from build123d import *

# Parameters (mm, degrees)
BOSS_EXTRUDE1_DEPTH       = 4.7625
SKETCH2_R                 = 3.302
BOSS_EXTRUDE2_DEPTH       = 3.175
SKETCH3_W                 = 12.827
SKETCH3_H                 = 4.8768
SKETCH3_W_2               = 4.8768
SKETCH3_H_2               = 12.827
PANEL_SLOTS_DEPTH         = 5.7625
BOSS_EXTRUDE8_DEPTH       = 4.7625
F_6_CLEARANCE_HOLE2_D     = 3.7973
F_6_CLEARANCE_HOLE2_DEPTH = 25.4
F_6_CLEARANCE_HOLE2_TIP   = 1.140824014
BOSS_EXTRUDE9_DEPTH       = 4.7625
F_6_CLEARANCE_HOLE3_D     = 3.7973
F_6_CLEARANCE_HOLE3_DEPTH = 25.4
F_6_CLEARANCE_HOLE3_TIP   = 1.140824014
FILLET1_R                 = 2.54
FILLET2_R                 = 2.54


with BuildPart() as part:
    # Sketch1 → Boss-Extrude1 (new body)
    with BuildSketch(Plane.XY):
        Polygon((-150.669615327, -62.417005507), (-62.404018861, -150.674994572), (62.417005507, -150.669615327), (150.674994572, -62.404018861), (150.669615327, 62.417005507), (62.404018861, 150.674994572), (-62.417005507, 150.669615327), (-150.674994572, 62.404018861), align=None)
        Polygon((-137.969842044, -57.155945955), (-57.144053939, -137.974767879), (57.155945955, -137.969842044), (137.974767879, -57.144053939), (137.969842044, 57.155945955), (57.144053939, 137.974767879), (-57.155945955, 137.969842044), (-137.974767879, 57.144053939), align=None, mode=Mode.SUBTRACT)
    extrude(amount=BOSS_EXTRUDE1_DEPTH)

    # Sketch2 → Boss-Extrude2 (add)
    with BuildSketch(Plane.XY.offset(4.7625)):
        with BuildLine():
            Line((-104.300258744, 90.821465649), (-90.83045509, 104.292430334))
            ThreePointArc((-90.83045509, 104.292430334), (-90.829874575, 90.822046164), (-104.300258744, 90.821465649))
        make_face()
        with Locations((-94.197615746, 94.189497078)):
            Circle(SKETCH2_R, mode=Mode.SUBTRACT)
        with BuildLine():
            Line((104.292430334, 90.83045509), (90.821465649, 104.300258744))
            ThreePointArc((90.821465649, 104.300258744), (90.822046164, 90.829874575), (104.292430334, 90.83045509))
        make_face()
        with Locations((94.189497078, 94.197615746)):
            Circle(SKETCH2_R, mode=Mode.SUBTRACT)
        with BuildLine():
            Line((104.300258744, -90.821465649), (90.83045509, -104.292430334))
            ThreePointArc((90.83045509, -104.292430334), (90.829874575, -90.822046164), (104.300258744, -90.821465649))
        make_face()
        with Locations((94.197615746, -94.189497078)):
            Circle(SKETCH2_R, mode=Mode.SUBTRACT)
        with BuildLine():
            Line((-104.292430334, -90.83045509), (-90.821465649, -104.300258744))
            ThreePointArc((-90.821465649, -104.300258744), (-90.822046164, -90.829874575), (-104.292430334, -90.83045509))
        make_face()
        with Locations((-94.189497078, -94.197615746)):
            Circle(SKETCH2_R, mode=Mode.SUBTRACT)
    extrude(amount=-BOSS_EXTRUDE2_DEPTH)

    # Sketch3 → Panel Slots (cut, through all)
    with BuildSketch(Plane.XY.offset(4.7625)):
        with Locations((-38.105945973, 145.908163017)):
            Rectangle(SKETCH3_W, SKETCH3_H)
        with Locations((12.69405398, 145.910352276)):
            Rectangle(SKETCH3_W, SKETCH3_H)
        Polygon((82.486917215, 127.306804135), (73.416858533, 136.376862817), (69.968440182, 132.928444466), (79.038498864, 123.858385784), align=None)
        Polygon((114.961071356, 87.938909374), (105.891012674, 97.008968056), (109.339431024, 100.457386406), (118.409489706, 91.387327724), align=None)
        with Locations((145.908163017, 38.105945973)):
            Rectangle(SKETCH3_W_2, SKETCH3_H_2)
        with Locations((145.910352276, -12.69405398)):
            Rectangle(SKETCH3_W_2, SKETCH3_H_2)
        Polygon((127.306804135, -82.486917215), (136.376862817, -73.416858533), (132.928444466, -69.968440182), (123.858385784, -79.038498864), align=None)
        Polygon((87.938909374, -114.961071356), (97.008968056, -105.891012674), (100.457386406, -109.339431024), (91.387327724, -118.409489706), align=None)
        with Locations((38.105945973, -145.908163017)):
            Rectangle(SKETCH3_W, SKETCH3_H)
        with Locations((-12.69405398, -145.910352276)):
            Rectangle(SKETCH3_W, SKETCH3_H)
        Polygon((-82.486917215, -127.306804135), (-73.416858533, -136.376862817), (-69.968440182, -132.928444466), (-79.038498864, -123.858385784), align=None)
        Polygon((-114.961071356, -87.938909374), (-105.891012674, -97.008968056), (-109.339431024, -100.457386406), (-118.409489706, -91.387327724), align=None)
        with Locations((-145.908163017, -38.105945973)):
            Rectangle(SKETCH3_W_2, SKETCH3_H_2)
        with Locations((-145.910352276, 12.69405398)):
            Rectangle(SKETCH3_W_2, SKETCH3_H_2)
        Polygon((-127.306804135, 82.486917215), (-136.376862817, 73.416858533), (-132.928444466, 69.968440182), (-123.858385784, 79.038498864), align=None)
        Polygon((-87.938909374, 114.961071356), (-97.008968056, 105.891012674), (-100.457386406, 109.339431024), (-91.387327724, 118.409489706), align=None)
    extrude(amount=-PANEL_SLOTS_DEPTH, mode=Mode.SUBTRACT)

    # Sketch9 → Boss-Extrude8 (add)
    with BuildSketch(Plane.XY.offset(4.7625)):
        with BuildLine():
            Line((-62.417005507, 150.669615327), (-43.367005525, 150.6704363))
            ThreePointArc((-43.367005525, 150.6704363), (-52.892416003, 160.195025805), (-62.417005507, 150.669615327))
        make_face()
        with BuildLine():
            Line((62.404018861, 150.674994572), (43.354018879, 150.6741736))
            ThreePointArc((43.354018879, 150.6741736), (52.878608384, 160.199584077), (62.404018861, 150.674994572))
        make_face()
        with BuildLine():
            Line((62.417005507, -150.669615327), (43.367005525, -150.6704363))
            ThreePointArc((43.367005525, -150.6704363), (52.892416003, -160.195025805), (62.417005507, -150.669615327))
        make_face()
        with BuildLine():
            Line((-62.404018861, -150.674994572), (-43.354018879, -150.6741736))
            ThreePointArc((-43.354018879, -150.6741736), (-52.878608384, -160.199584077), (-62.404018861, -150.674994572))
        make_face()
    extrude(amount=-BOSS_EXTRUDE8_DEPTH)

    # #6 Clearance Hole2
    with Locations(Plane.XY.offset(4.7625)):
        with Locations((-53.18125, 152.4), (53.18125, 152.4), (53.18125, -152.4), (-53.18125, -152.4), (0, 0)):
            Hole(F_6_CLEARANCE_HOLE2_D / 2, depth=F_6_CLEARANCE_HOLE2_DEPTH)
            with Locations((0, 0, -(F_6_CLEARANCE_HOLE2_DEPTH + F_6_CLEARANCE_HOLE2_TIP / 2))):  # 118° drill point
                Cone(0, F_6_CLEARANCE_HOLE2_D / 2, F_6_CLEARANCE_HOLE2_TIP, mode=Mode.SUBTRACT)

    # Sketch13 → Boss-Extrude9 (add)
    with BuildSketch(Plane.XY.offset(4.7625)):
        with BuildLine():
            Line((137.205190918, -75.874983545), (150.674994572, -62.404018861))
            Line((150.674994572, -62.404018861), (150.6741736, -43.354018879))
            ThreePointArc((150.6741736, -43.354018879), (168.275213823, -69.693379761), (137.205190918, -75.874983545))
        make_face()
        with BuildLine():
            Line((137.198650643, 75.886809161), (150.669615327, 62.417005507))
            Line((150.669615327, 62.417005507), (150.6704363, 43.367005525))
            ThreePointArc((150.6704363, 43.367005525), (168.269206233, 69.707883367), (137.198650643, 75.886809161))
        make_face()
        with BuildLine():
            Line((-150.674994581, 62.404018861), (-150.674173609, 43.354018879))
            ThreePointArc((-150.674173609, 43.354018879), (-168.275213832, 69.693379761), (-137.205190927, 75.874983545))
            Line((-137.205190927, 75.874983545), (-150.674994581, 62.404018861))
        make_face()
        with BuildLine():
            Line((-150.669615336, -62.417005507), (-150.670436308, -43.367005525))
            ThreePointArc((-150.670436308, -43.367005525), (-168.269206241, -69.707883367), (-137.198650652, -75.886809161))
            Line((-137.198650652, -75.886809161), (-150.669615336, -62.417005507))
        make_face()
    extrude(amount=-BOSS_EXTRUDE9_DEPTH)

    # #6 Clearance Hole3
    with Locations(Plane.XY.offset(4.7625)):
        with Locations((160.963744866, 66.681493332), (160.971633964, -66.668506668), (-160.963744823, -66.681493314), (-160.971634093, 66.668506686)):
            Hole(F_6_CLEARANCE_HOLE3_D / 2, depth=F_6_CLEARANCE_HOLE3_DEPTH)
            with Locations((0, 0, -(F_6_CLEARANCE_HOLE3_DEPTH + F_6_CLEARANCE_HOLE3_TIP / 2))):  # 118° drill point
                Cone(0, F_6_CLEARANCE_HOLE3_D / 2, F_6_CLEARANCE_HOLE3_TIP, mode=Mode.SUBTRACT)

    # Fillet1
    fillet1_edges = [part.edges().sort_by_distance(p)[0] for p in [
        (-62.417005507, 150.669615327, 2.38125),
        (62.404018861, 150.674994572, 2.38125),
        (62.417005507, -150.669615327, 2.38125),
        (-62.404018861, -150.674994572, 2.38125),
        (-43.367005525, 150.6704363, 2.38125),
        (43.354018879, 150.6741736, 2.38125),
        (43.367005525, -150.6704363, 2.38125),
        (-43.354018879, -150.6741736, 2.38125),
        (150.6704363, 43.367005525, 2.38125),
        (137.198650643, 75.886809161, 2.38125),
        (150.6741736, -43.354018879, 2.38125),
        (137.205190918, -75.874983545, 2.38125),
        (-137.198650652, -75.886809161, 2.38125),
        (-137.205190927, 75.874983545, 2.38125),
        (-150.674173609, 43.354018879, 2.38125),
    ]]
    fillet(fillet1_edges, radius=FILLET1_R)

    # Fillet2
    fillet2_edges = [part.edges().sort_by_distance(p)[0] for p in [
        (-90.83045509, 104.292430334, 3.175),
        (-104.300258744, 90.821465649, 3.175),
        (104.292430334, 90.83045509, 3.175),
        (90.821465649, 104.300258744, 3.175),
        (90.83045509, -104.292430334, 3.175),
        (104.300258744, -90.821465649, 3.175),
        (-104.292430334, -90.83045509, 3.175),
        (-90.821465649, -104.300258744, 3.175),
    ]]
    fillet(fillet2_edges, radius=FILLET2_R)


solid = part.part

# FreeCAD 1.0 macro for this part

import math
import FreeCAD as App
import Part
import Sketcher
from FreeCAD import Vector
Q = App.Units.Quantity


def edges_at(feature, points):
    """Names of the edges that pass closest to the given points."""
    edges = feature.Shape.Edges
    near = lambda p: min(range(len(edges)), key=lambda i: edges[i].distToShape(Part.Vertex(*p))[0])
    return sorted({f"Edge{near(p) + 1}" for p in points})

doc = App.newDocument("Part")
body = doc.addObject("PartDesign::Body", "Body")

# Sketch on XY plane
sketch1 = doc.addObject("Sketcher::SketchObject", "Sketch")
body.addObject(sketch1)
sketch1.AttachmentSupport = (doc.XY_Plane, [""])
sketch1.MapMode = "FlatFace"
sketch1.addGeometry(Part.LineSegment(Vector(-150.669615, -62.417006, 0), Vector(-62.404019, -150.674995, 0)), False)
sketch1.addGeometry(Part.LineSegment(Vector(-62.404019, -150.674995, 0), Vector(62.417006, -150.669615, 0)), False)
sketch1.addGeometry(Part.LineSegment(Vector(62.417006, -150.669615, 0), Vector(150.674995, -62.404019, 0)), False)
sketch1.addGeometry(Part.LineSegment(Vector(150.674995, -62.404019, 0), Vector(150.669615, 62.417006, 0)), False)
sketch1.addGeometry(Part.LineSegment(Vector(150.669615, 62.417006, 0), Vector(62.404019, 150.674995, 0)), False)
sketch1.addGeometry(Part.LineSegment(Vector(62.404019, 150.674995, 0), Vector(-62.417006, 150.669615, 0)), False)
sketch1.addGeometry(Part.LineSegment(Vector(-62.417006, 150.669615, 0), Vector(-150.674995, 62.404019, 0)), False)
sketch1.addGeometry(Part.LineSegment(Vector(-150.674995, 62.404019, 0), Vector(-150.669615, -62.417006, 0)), False)
sketch1.addGeometry(Part.LineSegment(Vector(-57.144054, -137.974768, 0), Vector(-137.969842, -57.155946, 0)), False)
sketch1.addGeometry(Part.LineSegment(Vector(-137.969842, -57.155946, 0), Vector(-137.974768, 57.144054, 0)), False)
sketch1.addGeometry(Part.LineSegment(Vector(-137.974768, 57.144054, 0), Vector(-57.155946, 137.969842, 0)), False)
sketch1.addGeometry(Part.LineSegment(Vector(-57.155946, 137.969842, 0), Vector(57.144054, 137.974768, 0)), False)
sketch1.addGeometry(Part.LineSegment(Vector(57.144054, 137.974768, 0), Vector(137.969842, 57.155946, 0)), False)
sketch1.addGeometry(Part.LineSegment(Vector(137.969842, 57.155946, 0), Vector(137.974768, -57.144054, 0)), False)
sketch1.addGeometry(Part.LineSegment(Vector(137.974768, -57.144054, 0), Vector(57.155946, -137.969842, 0)), False)
sketch1.addGeometry(Part.LineSegment(Vector(57.155946, -137.969842, 0), Vector(-57.144054, -137.974768, 0)), False)
sketch1.addConstraint(Sketcher.Constraint("Coincident", 0, 2, 1, 1))
sketch1.addConstraint(Sketcher.Constraint("Coincident", 1, 2, 2, 1))
sketch1.addConstraint(Sketcher.Constraint("Coincident", 2, 2, 3, 1))
sketch1.addConstraint(Sketcher.Constraint("Coincident", 3, 2, 4, 1))
sketch1.addConstraint(Sketcher.Constraint("Coincident", 4, 2, 5, 1))
sketch1.addConstraint(Sketcher.Constraint("Coincident", 5, 2, 6, 1))
sketch1.addConstraint(Sketcher.Constraint("Coincident", 6, 2, 7, 1))
sketch1.addConstraint(Sketcher.Constraint("Coincident", 7, 2, 0, 1))
sketch1.addConstraint(Sketcher.Constraint("Coincident", 8, 2, 9, 1))
sketch1.addConstraint(Sketcher.Constraint("Coincident", 9, 2, 10, 1))
sketch1.addConstraint(Sketcher.Constraint("Coincident", 10, 2, 11, 1))
sketch1.addConstraint(Sketcher.Constraint("Coincident", 11, 2, 12, 1))
sketch1.addConstraint(Sketcher.Constraint("Coincident", 12, 2, 13, 1))
sketch1.addConstraint(Sketcher.Constraint("Coincident", 13, 2, 14, 1))
sketch1.addConstraint(Sketcher.Constraint("Coincident", 14, 2, 15, 1))
sketch1.addConstraint(Sketcher.Constraint("Coincident", 15, 2, 8, 1))
sketch1.addConstraint(Sketcher.Constraint("Symmetric", 0, 2, 4, 2, -1, 1))
sketch1.addConstraint(Sketcher.Constraint("Symmetric", 1, 2, 5, 2, -1, 1))
sketch1.addConstraint(Sketcher.Constraint("Symmetric", 2, 2, 6, 2, -1, 1))
sketch1.addConstraint(Sketcher.Constraint("Symmetric", 3, 2, 7, 2, -1, 1))
sketch1.addConstraint(Sketcher.Constraint("Symmetric", 8, 2, 12, 2, -1, 1))
sketch1.addConstraint(Sketcher.Constraint("Symmetric", 9, 2, 13, 2, -1, 1))
sketch1.addConstraint(Sketcher.Constraint("Symmetric", 10, 2, 14, 2, -1, 1))
sketch1.addConstraint(Sketcher.Constraint("Symmetric", 11, 2, 15, 2, -1, 1))
sketch1.addConstraint(Sketcher.Constraint("Perpendicular", 0, 2))
sketch1.addConstraint(Sketcher.Constraint("Perpendicular", 1, 3))
sketch1.addConstraint(Sketcher.Constraint("Perpendicular", 6, 8))
sketch1.addConstraint(Sketcher.Constraint("Parallel", 7, 9))
sketch1.addConstraint(Sketcher.Constraint("Perpendicular", 8, 10))
sketch1.addConstraint(Sketcher.Constraint("Perpendicular", 9, 11))
sketch1.addConstraint(Sketcher.Constraint("Equal", 0, 1))
sketch1.addConstraint(Sketcher.Constraint("Equal", 1, 2))
sketch1.addConstraint(Sketcher.Constraint("Equal", 2, 3))
sketch1.addConstraint(Sketcher.Constraint("Equal", 8, 9))
sketch1.addConstraint(Sketcher.Constraint("Equal", 9, 10))
sketch1.addConstraint(Sketcher.Constraint("Equal", 10, 11))
sketch1.addConstraint(Sketcher.Constraint("Distance", 8, Q("4.5 in")))
sketch1.addConstraint(Sketcher.Constraint("DistanceY", 0, 2, 3, 2, Q("213.092 mm")))
sketch1.addConstraint(Sketcher.Constraint("DistanceX", 0, 2, -1, 1, Q("62.404019 mm")))
sketch1.addConstraint(Sketcher.Constraint("DistanceY", 0, 2, 1, 2, Q("0.005379 mm")))
pad1 = doc.addObject("PartDesign::Pad", "Pad")
body.addObject(pad1)
pad1.Profile = sketch1
pad1.Length = Q("0.1875 in")

# Sketch on XY plane
sketch2 = doc.addObject("Sketcher::SketchObject", "Sketch001")
body.addObject(sketch2)
sketch2.AttachmentSupport = (doc.XY_Plane, [""])
sketch2.MapMode = "FlatFace"
sketch2.AttachmentOffset = App.Placement(Vector(0, 0, 0.1875 * 25.4), App.Rotation())
sketch2.addGeometry(Part.LineSegment(Vector(-90.830455, 104.29243, 0), Vector(-104.300259, 90.821466, 0)), False)
sketch2.addGeometry(Part.ArcOfCircle(Part.Circle(Vector(-97.565357, 97.556948, 0), Vector(0, 0, 1), 9.525), math.radians(-134.997531), math.radians(45.002469)), False)
sketch2.addGeometry(Part.Circle(Vector(-94.197616, 94.189497, 0), Vector(0, 0, 1), 3.302), False)
sketch2.addGeometry(Part.LineSegment(Vector(104.29243, 90.830455, 0), Vector(90.821466, 104.300259, 0)), False)
sketch2.addGeometry(Part.ArcOfCircle(Part.Circle(Vector(97.556948, 97.565357, 0), Vector(0, 0, 1), 9.525), math.radians(135.002469), math.radians(315.002469)), False)
sketch2.addGeometry(Part.Circle(Vector(94.189497, 94.197616, 0), Vector(0, 0, 1), 3.302), False)
sketch2.addGeometry(Part.LineSegment(Vector(90.830455, -104.29243, 0), Vector(104.300259, -90.821466, 0)), False)
sketch2.addGeometry(Part.ArcOfCircle(Part.Circle(Vector(97.565357, -97.556948, 0), Vector(0, 0, 1), 9.525), math.radians(45.002469), math.radians(225.002469)), False)
sketch2.addGeometry(Part.Circle(Vector(94.197616, -94.189497, 0), Vector(0, 0, 1), 3.302), False)
sketch2.addGeometry(Part.LineSegment(Vector(-104.29243, -90.830455, 0), Vector(-90.821466, -104.300259, 0)), False)
sketch2.addGeometry(Part.ArcOfCircle(Part.Circle(Vector(-97.556948, -97.565357, 0), Vector(0, 0, 1), 9.525), math.radians(-44.997531), math.radians(135.002469)), False)
sketch2.addGeometry(Part.Circle(Vector(-94.189497, -94.197616, 0), Vector(0, 0, 1), 3.302), False)
sketch2.addConstraint(Sketcher.Constraint("Coincident", 0, 1, 1, 2))
sketch2.addConstraint(Sketcher.Constraint("Coincident", 1, 1, 0, 2))
sketch2.addConstraint(Sketcher.Constraint("Coincident", 3, 1, 4, 2))
sketch2.addConstraint(Sketcher.Constraint("Coincident", 4, 1, 3, 2))
sketch2.addConstraint(Sketcher.Constraint("Coincident", 6, 1, 7, 2))
sketch2.addConstraint(Sketcher.Constraint("Coincident", 7, 1, 6, 2))
sketch2.addConstraint(Sketcher.Constraint("Coincident", 9, 1, 10, 2))
sketch2.addConstraint(Sketcher.Constraint("Coincident", 10, 1, 9, 2))
sketch2.addConstraint(Sketcher.Constraint("Equal", 1, 4))
sketch2.addConstraint(Sketcher.Constraint("Equal", 2, 5))
sketch2.addConstraint(Sketcher.Constraint("Equal", 4, 7))
sketch2.addConstraint(Sketcher.Constraint("Equal", 5, 8))
sketch2.addConstraint(Sketcher.Constraint("Equal", 7, 10))
sketch2.addConstraint(Sketcher.Constraint("Equal", 8, 11))
sketch2.addConstraint(Sketcher.Constraint("Symmetric", 1, 3, 7, 3, -1, 1))
sketch2.addConstraint(Sketcher.Constraint("Symmetric", 2, 3, 8, 3, -1, 1))
sketch2.addConstraint(Sketcher.Constraint("Symmetric", 4, 3, 10, 3, -1, 1))
sketch2.addConstraint(Sketcher.Constraint("Symmetric", 5, 3, 11, 3, -1, 1))
sketch2.addConstraint(Sketcher.Constraint("Perpendicular", 0, 3))
sketch2.addConstraint(Sketcher.Constraint("Perpendicular", 3, 6))
sketch2.addConstraint(Sketcher.Constraint("Perpendicular", 6, 9))
sketch2.addConstraint(Sketcher.Constraint("Diameter", 2, Q("0.26 in")))
sketch2.addConstraint(Sketcher.Constraint("Radius", 1, Q("0.375 in")))
sketch2.addConstraint(Sketcher.Constraint("DistanceX", 1, 3, 0, 1, Q("6.734902 mm")))
sketch2.addConstraint(Sketcher.Constraint("DistanceX", 1, 1, 1, 3, Q("6.734902 mm")))
sketch2.addConstraint(Sketcher.Constraint("DistanceY", 3, 1, 4, 3, Q("6.734902 mm")))
sketch2.addConstraint(Sketcher.Constraint("DistanceX", 6, 1, 7, 3, Q("6.734902 mm")))
sketch2.addConstraint(Sketcher.Constraint("DistanceY", 10, 3, 9, 1, Q("6.734902 mm")))
sketch2.addConstraint(Sketcher.Constraint("DistanceY", -1, 1, 0, 1, Q("104.29243 mm")))
sketch2.addConstraint(Sketcher.Constraint("DistanceX", 1, 1, -1, 1, Q("104.300259 mm")))
sketch2.addConstraint(Sketcher.Constraint("DistanceX", -1, 1, 3, 1, Q("104.29243 mm")))
sketch2.addConstraint(Sketcher.Constraint("DistanceY", -1, 1, 4, 1, Q("104.300259 mm")))
sketch2.addConstraint(Sketcher.Constraint("DistanceX", 1, 3, 2, 3, Q("3.367741 mm")))
sketch2.addConstraint(Sketcher.Constraint("DistanceY", 2, 3, 1, 3, Q("3.367451 mm")))
sketch2.addConstraint(Sketcher.Constraint("DistanceX", 5, 3, 4, 3, Q("3.367451 mm")))
sketch2.addConstraint(Sketcher.Constraint("DistanceY", 5, 3, 4, 3, Q("3.367741 mm")))
pad2 = doc.addObject("PartDesign::Pad", "Pad001")
body.addObject(pad2)
pad2.Profile = sketch2
pad2.Length = Q("0.125 in")
pad2.Reversed = True

# Sketch on XY plane
sketch3 = doc.addObject("Sketcher::SketchObject", "Sketch002")
body.addObject(sketch3)
sketch3.AttachmentSupport = (doc.XY_Plane, [""])
sketch3.MapMode = "FlatFace"
sketch3.AttachmentOffset = App.Placement(Vector(0, 0, 0.1875 * 25.4), App.Rotation())
sketch3.addGeometry(Part.LineSegment(Vector(-44.519446, 148.346563, 0), Vector(-44.519446, 143.469763, 0)), False)
sketch3.addGeometry(Part.LineSegment(Vector(-44.519446, 143.469763, 0), Vector(-31.692446, 143.469763, 0)), False)
sketch3.addGeometry(Part.LineSegment(Vector(-31.692446, 143.469763, 0), Vector(-31.692446, 148.346563, 0)), False)
sketch3.addGeometry(Part.LineSegment(Vector(-31.692446, 148.346563, 0), Vector(-44.519446, 148.346563, 0)), False)
sketch3.addGeometry(Part.LineSegment(Vector(6.280554, 148.348752, 0), Vector(6.280554, 143.471952, 0)), False)
sketch3.addGeometry(Part.LineSegment(Vector(6.280554, 143.471952, 0), Vector(19.107554, 143.471952, 0)), False)
sketch3.addGeometry(Part.LineSegment(Vector(19.107554, 143.471952, 0), Vector(19.107554, 148.348752, 0)), False)
sketch3.addGeometry(Part.LineSegment(Vector(19.107554, 148.348752, 0), Vector(6.280554, 148.348752, 0)), False)
sketch3.addGeometry(Part.LineSegment(Vector(82.486917, 127.306804, 0), Vector(73.416859, 136.376863, 0)), False)
sketch3.addGeometry(Part.LineSegment(Vector(73.416859, 136.376863, 0), Vector(69.96844, 132.928444, 0)), False)
sketch3.addGeometry(Part.LineSegment(Vector(69.96844, 132.928444, 0), Vector(79.038499, 123.858386, 0)), False)
sketch3.addGeometry(Part.LineSegment(Vector(79.038499, 123.858386, 0), Vector(82.486917, 127.306804, 0)), False)
sketch3.addGeometry(Part.LineSegment(Vector(105.891013, 97.008968, 0), Vector(114.961071, 87.938909, 0)), False)
sketch3.addGeometry(Part.LineSegment(Vector(114.961071, 87.938909, 0), Vector(118.40949, 91.387328, 0)), False)
sketch3.addGeometry(Part.LineSegment(Vector(118.40949, 91.387328, 0), Vector(109.339431, 100.457386, 0)), False)
sketch3.addGeometry(Part.LineSegment(Vector(109.339431, 100.457386, 0), Vector(105.891013, 97.008968, 0)), False)
sketch3.addGeometry(Part.LineSegment(Vector(143.469763, 44.519446, 0), Vector(143.469763, 31.692446, 0)), False)
sketch3.addGeometry(Part.LineSegment(Vector(143.469763, 31.692446, 0), Vector(148.346563, 31.692446, 0)), False)
sketch3.addGeometry(Part.LineSegment(Vector(148.346563, 31.692446, 0), Vector(148.346563, 44.519446, 0)), False)
sketch3.addGeometry(Part.LineSegment(Vector(148.346563, 44.519446, 0), Vector(143.469763, 44.519446, 0)), False)
sketch3.addGeometry(Part.LineSegment(Vector(143.471952, -6.280554, 0), Vector(143.471952, -19.107554, 0)), False)
sketch3.addGeometry(Part.LineSegment(Vector(143.471952, -19.107554, 0), Vector(148.348752, -19.107554, 0)), False)
sketch3.addGeometry(Part.LineSegment(Vector(148.348752, -19.107554, 0), Vector(148.348752, -6.280554, 0)), False)
sketch3.addGeometry(Part.LineSegment(Vector(148.348752, -6.280554, 0), Vector(143.471952, -6.280554, 0)), False)
sketch3.addGeometry(Part.LineSegment(Vector(127.306804, -82.486917, 0), Vector(136.376863, -73.416859, 0)), False)
sketch3.addGeometry(Part.LineSegment(Vector(136.376863, -73.416859, 0), Vector(132.928444, -69.96844, 0)), False)
sketch3.addGeometry(Part.LineSegment(Vector(132.928444, -69.96844, 0), Vector(123.858386, -79.038499, 0)), False)
sketch3.addGeometry(Part.LineSegment(Vector(123.858386, -79.038499, 0), Vector(127.306804, -82.486917, 0)), False)
sketch3.addGeometry(Part.LineSegment(Vector(97.008968, -105.891013, 0), Vector(87.938909, -114.961071, 0)), False)
sketch3.addGeometry(Part.LineSegment(Vector(87.938909, -114.961071, 0), Vector(91.387328, -118.40949, 0)), False)
sketch3.addGeometry(Part.LineSegment(Vector(91.387328, -118.40949, 0), Vector(100.457386, -109.339431, 0)), False)
sketch3.addGeometry(Part.LineSegment(Vector(100.457386, -109.339431, 0), Vector(97.008968, -105.891013, 0)), False)
sketch3.addGeometry(Part.LineSegment(Vector(31.692446, -143.469763, 0), Vector(31.692446, -148.346563, 0)), False)
sketch3.addGeometry(Part.LineSegment(Vector(31.692446, -148.346563, 0), Vector(44.519446, -148.346563, 0)), False)
sketch3.addGeometry(Part.LineSegment(Vector(44.519446, -148.346563, 0), Vector(44.519446, -143.469763, 0)), False)
sketch3.addGeometry(Part.LineSegment(Vector(44.519446, -143.469763, 0), Vector(31.692446, -143.469763, 0)), False)
sketch3.addGeometry(Part.LineSegment(Vector(-19.107554, -143.471952, 0), Vector(-19.107554, -148.348752, 0)), False)
sketch3.addGeometry(Part.LineSegment(Vector(-19.107554, -148.348752, 0), Vector(-6.280554, -148.348752, 0)), False)
sketch3.addGeometry(Part.LineSegment(Vector(-6.280554, -148.348752, 0), Vector(-6.280554, -143.471952, 0)), False)
sketch3.addGeometry(Part.LineSegment(Vector(-6.280554, -143.471952, 0), Vector(-19.107554, -143.471952, 0)), False)
sketch3.addGeometry(Part.LineSegment(Vector(-82.486917, -127.306804, 0), Vector(-73.416859, -136.376863, 0)), False)
sketch3.addGeometry(Part.LineSegment(Vector(-73.416859, -136.376863, 0), Vector(-69.96844, -132.928444, 0)), False)
sketch3.addGeometry(Part.LineSegment(Vector(-69.96844, -132.928444, 0), Vector(-79.038499, -123.858386, 0)), False)
sketch3.addGeometry(Part.LineSegment(Vector(-79.038499, -123.858386, 0), Vector(-82.486917, -127.306804, 0)), False)
sketch3.addGeometry(Part.LineSegment(Vector(-105.891013, -97.008968, 0), Vector(-114.961071, -87.938909, 0)), False)
sketch3.addGeometry(Part.LineSegment(Vector(-114.961071, -87.938909, 0), Vector(-118.40949, -91.387328, 0)), False)
sketch3.addGeometry(Part.LineSegment(Vector(-118.40949, -91.387328, 0), Vector(-109.339431, -100.457386, 0)), False)
sketch3.addGeometry(Part.LineSegment(Vector(-109.339431, -100.457386, 0), Vector(-105.891013, -97.008968, 0)), False)
sketch3.addGeometry(Part.LineSegment(Vector(-148.346563, -31.692446, 0), Vector(-148.346563, -44.519446, 0)), False)
sketch3.addGeometry(Part.LineSegment(Vector(-148.346563, -44.519446, 0), Vector(-143.469763, -44.519446, 0)), False)
sketch3.addGeometry(Part.LineSegment(Vector(-143.469763, -44.519446, 0), Vector(-143.469763, -31.692446, 0)), False)
sketch3.addGeometry(Part.LineSegment(Vector(-143.469763, -31.692446, 0), Vector(-148.346563, -31.692446, 0)), False)
sketch3.addGeometry(Part.LineSegment(Vector(-148.348752, 19.107554, 0), Vector(-148.348752, 6.280554, 0)), False)
sketch3.addGeometry(Part.LineSegment(Vector(-148.348752, 6.280554, 0), Vector(-143.471952, 6.280554, 0)), False)
sketch3.addGeometry(Part.LineSegment(Vector(-143.471952, 6.280554, 0), Vector(-143.471952, 19.107554, 0)), False)
sketch3.addGeometry(Part.LineSegment(Vector(-143.471952, 19.107554, 0), Vector(-148.348752, 19.107554, 0)), False)
sketch3.addGeometry(Part.LineSegment(Vector(-127.306804, 82.486917, 0), Vector(-136.376863, 73.416859, 0)), False)
sketch3.addGeometry(Part.LineSegment(Vector(-136.376863, 73.416859, 0), Vector(-132.928444, 69.96844, 0)), False)
sketch3.addGeometry(Part.LineSegment(Vector(-132.928444, 69.96844, 0), Vector(-123.858386, 79.038499, 0)), False)
sketch3.addGeometry(Part.LineSegment(Vector(-123.858386, 79.038499, 0), Vector(-127.306804, 82.486917, 0)), False)
sketch3.addGeometry(Part.LineSegment(Vector(-97.008968, 105.891013, 0), Vector(-87.938909, 114.961071, 0)), False)
sketch3.addGeometry(Part.LineSegment(Vector(-87.938909, 114.961071, 0), Vector(-91.387328, 118.40949, 0)), False)
sketch3.addGeometry(Part.LineSegment(Vector(-91.387328, 118.40949, 0), Vector(-100.457386, 109.339431, 0)), False)
sketch3.addGeometry(Part.LineSegment(Vector(-100.457386, 109.339431, 0), Vector(-97.008968, 105.891013, 0)), False)
sketch3.addConstraint(Sketcher.Constraint("Coincident", 0, 2, 1, 1))
sketch3.addConstraint(Sketcher.Constraint("Coincident", 1, 2, 2, 1))
sketch3.addConstraint(Sketcher.Constraint("Coincident", 2, 2, 3, 1))
sketch3.addConstraint(Sketcher.Constraint("Coincident", 3, 2, 0, 1))
sketch3.addConstraint(Sketcher.Constraint("Coincident", 4, 2, 5, 1))
sketch3.addConstraint(Sketcher.Constraint("Coincident", 5, 2, 6, 1))
sketch3.addConstraint(Sketcher.Constraint("Coincident", 6, 2, 7, 1))
sketch3.addConstraint(Sketcher.Constraint("Coincident", 7, 2, 4, 1))
sketch3.addConstraint(Sketcher.Constraint("Coincident", 8, 2, 9, 1))
sketch3.addConstraint(Sketcher.Constraint("Coincident", 9, 2, 10, 1))
sketch3.addConstraint(Sketcher.Constraint("Coincident", 10, 2, 11, 1))
sketch3.addConstraint(Sketcher.Constraint("Coincident", 11, 2, 8, 1))
sketch3.addConstraint(Sketcher.Constraint("Coincident", 12, 2, 13, 1))
sketch3.addConstraint(Sketcher.Constraint("Coincident", 13, 2, 14, 1))
sketch3.addConstraint(Sketcher.Constraint("Coincident", 14, 2, 15, 1))
sketch3.addConstraint(Sketcher.Constraint("Coincident", 15, 2, 12, 1))
sketch3.addConstraint(Sketcher.Constraint("Coincident", 16, 2, 17, 1))
sketch3.addConstraint(Sketcher.Constraint("Coincident", 17, 2, 18, 1))
sketch3.addConstraint(Sketcher.Constraint("Coincident", 18, 2, 19, 1))
sketch3.addConstraint(Sketcher.Constraint("Coincident", 19, 2, 16, 1))
sketch3.addConstraint(Sketcher.Constraint("Coincident", 20, 2, 21, 1))
sketch3.addConstraint(Sketcher.Constraint("Coincident", 21, 2, 22, 1))
sketch3.addConstraint(Sketcher.Constraint("Coincident", 22, 2, 23, 1))
sketch3.addConstraint(Sketcher.Constraint("Coincident", 23, 2, 20, 1))
sketch3.addConstraint(Sketcher.Constraint("Coincident", 24, 2, 25, 1))
sketch3.addConstraint(Sketcher.Constraint("Coincident", 25, 2, 26, 1))
sketch3.addConstraint(Sketcher.Constraint("Coincident", 26, 2, 27, 1))
sketch3.addConstraint(Sketcher.Constraint("Coincident", 27, 2, 24, 1))
sketch3.addConstraint(Sketcher.Constraint("Coincident", 28, 2, 29, 1))
sketch3.addConstraint(Sketcher.Constraint("Coincident", 29, 2, 30, 1))
sketch3.addConstraint(Sketcher.Constraint("Coincident", 30, 2, 31, 1))
sketch3.addConstraint(Sketcher.Constraint("Coincident", 31, 2, 28, 1))
sketch3.addConstraint(Sketcher.Constraint("Coincident", 32, 2, 33, 1))
sketch3.addConstraint(Sketcher.Constraint("Coincident", 33, 2, 34, 1))
sketch3.addConstraint(Sketcher.Constraint("Coincident", 34, 2, 35, 1))
sketch3.addConstraint(Sketcher.Constraint("Coincident", 35, 2, 32, 1))
sketch3.addConstraint(Sketcher.Constraint("Coincident", 36, 2, 37, 1))
sketch3.addConstraint(Sketcher.Constraint("Coincident", 37, 2, 38, 1))
sketch3.addConstraint(Sketcher.Constraint("Coincident", 38, 2, 39, 1))
sketch3.addConstraint(Sketcher.Constraint("Coincident", 39, 2, 36, 1))
sketch3.addConstraint(Sketcher.Constraint("Coincident", 40, 2, 41, 1))
sketch3.addConstraint(Sketcher.Constraint("Coincident", 41, 2, 42, 1))
sketch3.addConstraint(Sketcher.Constraint("Coincident", 42, 2, 43, 1))
sketch3.addConstraint(Sketcher.Constraint("Coincident", 43, 2, 40, 1))
sketch3.addConstraint(Sketcher.Constraint("Coincident", 44, 2, 45, 1))
sketch3.addConstraint(Sketcher.Constraint("Coincident", 45, 2, 46, 1))
sketch3.addConstraint(Sketcher.Constraint("Coincident", 46, 2, 47, 1))
sketch3.addConstraint(Sketcher.Constraint("Coincident", 47, 2, 44, 1))
sketch3.addConstraint(Sketcher.Constraint("Coincident", 48, 2, 49, 1))
sketch3.addConstraint(Sketcher.Constraint("Coincident", 49, 2, 50, 1))
sketch3.addConstraint(Sketcher.Constraint("Coincident", 50, 2, 51, 1))
sketch3.addConstraint(Sketcher.Constraint("Coincident", 51, 2, 48, 1))
sketch3.addConstraint(Sketcher.Constraint("Coincident", 52, 2, 53, 1))
sketch3.addConstraint(Sketcher.Constraint("Coincident", 53, 2, 54, 1))
sketch3.addConstraint(Sketcher.Constraint("Coincident", 54, 2, 55, 1))
sketch3.addConstraint(Sketcher.Constraint("Coincident", 55, 2, 52, 1))
sketch3.addConstraint(Sketcher.Constraint("Coincident", 56, 2, 57, 1))
sketch3.addConstraint(Sketcher.Constraint("Coincident", 57, 2, 58, 1))
sketch3.addConstraint(Sketcher.Constraint("Coincident", 58, 2, 59, 1))
sketch3.addConstraint(Sketcher.Constraint("Coincident", 59, 2, 56, 1))
sketch3.addConstraint(Sketcher.Constraint("Coincident", 60, 2, 61, 1))
sketch3.addConstraint(Sketcher.Constraint("Coincident", 61, 2, 62, 1))
sketch3.addConstraint(Sketcher.Constraint("Coincident", 62, 2, 63, 1))
sketch3.addConstraint(Sketcher.Constraint("Coincident", 63, 2, 60, 1))
sketch3.addConstraint(Sketcher.Constraint("Vertical", 0))
sketch3.addConstraint(Sketcher.Constraint("Horizontal", 1))
sketch3.addConstraint(Sketcher.Constraint("Vertical", 2))
sketch3.addConstraint(Sketcher.Constraint("Horizontal", 3))
sketch3.addConstraint(Sketcher.Constraint("Vertical", 4))
sketch3.addConstraint(Sketcher.Constraint("Horizontal", 5))
sketch3.addConstraint(Sketcher.Constraint("Vertical", 6))
sketch3.addConstraint(Sketcher.Constraint("Horizontal", 7))
sketch3.addConstraint(Sketcher.Constraint("Vertical", 16))
sketch3.addConstraint(Sketcher.Constraint("Horizontal", 17))
sketch3.addConstraint(Sketcher.Constraint("Vertical", 18))
sketch3.addConstraint(Sketcher.Constraint("Horizontal", 19))
sketch3.addConstraint(Sketcher.Constraint("Vertical", 20))
sketch3.addConstraint(Sketcher.Constraint("Horizontal", 21))
sketch3.addConstraint(Sketcher.Constraint("Vertical", 22))
sketch3.addConstraint(Sketcher.Constraint("Horizontal", 23))
sketch3.addConstraint(Sketcher.Constraint("Vertical", 32))
sketch3.addConstraint(Sketcher.Constraint("Horizontal", 33))
sketch3.addConstraint(Sketcher.Constraint("Vertical", 34))
sketch3.addConstraint(Sketcher.Constraint("Horizontal", 35))
sketch3.addConstraint(Sketcher.Constraint("Vertical", 36))
sketch3.addConstraint(Sketcher.Constraint("Horizontal", 37))
sketch3.addConstraint(Sketcher.Constraint("Vertical", 38))
sketch3.addConstraint(Sketcher.Constraint("Horizontal", 39))
sketch3.addConstraint(Sketcher.Constraint("Vertical", 48))
sketch3.addConstraint(Sketcher.Constraint("Horizontal", 49))
sketch3.addConstraint(Sketcher.Constraint("Vertical", 50))
sketch3.addConstraint(Sketcher.Constraint("Horizontal", 51))
sketch3.addConstraint(Sketcher.Constraint("Vertical", 52))
sketch3.addConstraint(Sketcher.Constraint("Horizontal", 53))
sketch3.addConstraint(Sketcher.Constraint("Vertical", 54))
sketch3.addConstraint(Sketcher.Constraint("Horizontal", 55))
sketch3.addConstraint(Sketcher.Constraint("Symmetric", 2, 2, 32, 2, -1, 1))
sketch3.addConstraint(Sketcher.Constraint("Symmetric", 0, 2, 34, 2, -1, 1))
sketch3.addConstraint(Sketcher.Constraint("Symmetric", 6, 2, 36, 2, -1, 1))
sketch3.addConstraint(Sketcher.Constraint("Symmetric", 4, 2, 38, 2, -1, 1))
sketch3.addConstraint(Sketcher.Constraint("Symmetric", 8, 2, 40, 2, -1, 1))
sketch3.addConstraint(Sketcher.Constraint("Symmetric", 9, 2, 41, 2, -1, 1))
sketch3.addConstraint(Sketcher.Constraint("Symmetric", 10, 2, 42, 2, -1, 1))
sketch3.addConstraint(Sketcher.Constraint("Symmetric", 11, 2, 43, 2, -1, 1))
sketch3.addConstraint(Sketcher.Constraint("Symmetric", 12, 2, 44, 2, -1, 1))
sketch3.addConstraint(Sketcher.Constraint("Symmetric", 13, 2, 45, 2, -1, 1))
sketch3.addConstraint(Sketcher.Constraint("Symmetric", 14, 2, 46, 2, -1, 1))
sketch3.addConstraint(Sketcher.Constraint("Symmetric", 15, 2, 47, 2, -1, 1))
sketch3.addConstraint(Sketcher.Constraint("Symmetric", 18, 2, 48, 2, -1, 1))
sketch3.addConstraint(Sketcher.Constraint("Symmetric", 16, 2, 50, 2, -1, 1))
sketch3.addConstraint(Sketcher.Constraint("Symmetric", 22, 2, 52, 2, -1, 1))
sketch3.addConstraint(Sketcher.Constraint("Symmetric", 20, 2, 54, 2, -1, 1))
sketch3.addConstraint(Sketcher.Constraint("Symmetric", 24, 2, 56, 2, -1, 1))
sketch3.addConstraint(Sketcher.Constraint("Symmetric", 25, 2, 57, 2, -1, 1))
sketch3.addConstraint(Sketcher.Constraint("Symmetric", 26, 2, 58, 2, -1, 1))
sketch3.addConstraint(Sketcher.Constraint("Symmetric", 27, 2, 59, 2, -1, 1))
sketch3.addConstraint(Sketcher.Constraint("Symmetric", 28, 2, 60, 2, -1, 1))
sketch3.addConstraint(Sketcher.Constraint("Symmetric", 29, 2, 61, 2, -1, 1))
sketch3.addConstraint(Sketcher.Constraint("Symmetric", 30, 2, 62, 2, -1, 1))
sketch3.addConstraint(Sketcher.Constraint("Symmetric", 31, 2, 63, 2, -1, 1))
sketch3.addConstraint(Sketcher.Constraint("Perpendicular", 8, 9))
sketch3.addConstraint(Sketcher.Constraint("Perpendicular", 9, 10))
sketch3.addConstraint(Sketcher.Constraint("Perpendicular", 10, 11))
sketch3.addConstraint(Sketcher.Constraint("Perpendicular", 11, 12))
sketch3.addConstraint(Sketcher.Constraint("Perpendicular", 12, 13))
sketch3.addConstraint(Sketcher.Constraint("Perpendicular", 13, 14))
sketch3.addConstraint(Sketcher.Constraint("Perpendicular", 14, 15))
sketch3.addConstraint(Sketcher.Constraint("Parallel", 15, 24))
sketch3.addConstraint(Sketcher.Constraint("Perpendicular", 24, 25))
sketch3.addConstraint(Sketcher.Constraint("Perpendicular", 25, 26))
sketch3.addConstraint(Sketcher.Constraint("Perpendicular", 26, 27))
sketch3.addConstraint(Sketcher.Constraint("Perpendicular", 27, 28))
sketch3.addConstraint(Sketcher.Constraint("Perpendicular", 28, 29))
sketch3.addConstraint(Sketcher.Constraint("Perpendicular", 29, 30))
sketch3.addConstraint(Sketcher.Constraint("Perpendicular", 30, 31))
sketch3.addConstraint(Sketcher.Constraint("Equal", 3, 5))
sketch3.addConstraint(Sketcher.Constraint("Equal", 19, 21))
sketch3.addConstraint(Sketcher.Constraint("Equal", 55, 0))
sketch3.addConstraint(Sketcher.Constraint("Equal", 2, 4))
sketch3.addConstraint(Sketcher.Constraint("Equal", 39, 16))
sketch3.addConstraint(Sketcher.Constraint("Equal", 18, 20))
sketch3.addConstraint(Sketcher.Constraint("Equal", 10, 12))
sketch3.addConstraint(Sketcher.Constraint("Equal", 11, 13))
sketch3.addConstraint(Sketcher.Constraint("Equal", 14, 24))
sketch3.addConstraint(Sketcher.Constraint("Equal", 15, 25))
sketch3.addConstraint(Sketcher.Constraint("Equal", 26, 28))
sketch3.addConstraint(Sketcher.Constraint("Equal", 27, 29))
sketch3.addConstraint(Sketcher.Constraint("Angle", 8, Q("135 deg")))
sketch3.addConstraint(Sketcher.Constraint("DistanceX", 1, 1, 1, 2, Q("0.505 in")))
sketch3.addConstraint(Sketcher.Constraint("DistanceX", 17, 1, 17, 2, Q("0.192 in")))
sketch3.addConstraint(Sketcher.Constraint("Distance", 8, Q("0.505 in")))
sketch3.addConstraint(Sketcher.Constraint("Distance", 9, Q("0.192 in")))
sketch3.addConstraint(Sketcher.Constraint("DistanceX", -1, 1, 10, 2, Q("79.038499 mm")))
sketch3.addConstraint(Sketcher.Constraint("DistanceY", 26, 2, -1, 1, Q("79.038499 mm")))
sketch3.addConstraint(Sketcher.Constraint("DistanceX", -1, 1, 12, 2, Q("114.961071 mm")))
sketch3.addConstraint(Sketcher.Constraint("DistanceY", -1, 1, 12, 2, Q("87.938909 mm")))
sketch3.addConstraint(Sketcher.Constraint("DistanceX", -1, 1, 28, 2, Q("87.938909 mm")))
sketch3.addConstraint(Sketcher.Constraint("DistanceY", 28, 2, -1, 1, Q("114.961071 mm")))
sketch3.addConstraint(Sketcher.Constraint("DistanceX", 0, 2, -1, 1, Q("44.519446 mm")))
sketch3.addConstraint(Sketcher.Constraint("DistanceY", -1, 1, 0, 2, Q("143.469763 mm")))
sketch3.addConstraint(Sketcher.Constraint("DistanceX", -1, 1, 4, 2, Q("6.280554 mm")))
sketch3.addConstraint(Sketcher.Constraint("DistanceY", -1, 1, 4, 2, Q("143.471952 mm")))
sketch3.addConstraint(Sketcher.Constraint("DistanceY", -1, 1, 8, 2, Q("136.376863 mm")))
sketch3.addConstraint(Sketcher.Constraint("DistanceX", -1, 1, 16, 2, Q("143.469763 mm")))
sketch3.addConstraint(Sketcher.Constraint("DistanceY", -1, 1, 16, 2, Q("31.692446 mm")))
sketch3.addConstraint(Sketcher.Constraint("DistanceX", -1, 1, 20, 2, Q("143.471952 mm")))
sketch3.addConstraint(Sketcher.Constraint("DistanceY", 20, 2, -1, 1, Q("19.107554 mm")))
sketch3.addConstraint(Sketcher.Constraint("DistanceX", -1, 1, 24, 2, Q("136.376863 mm")))
pocket1 = doc.addObject("PartDesign::Pocket", "Pocket")
body.addObject(pocket1)
pocket1.Profile = sketch3
pocket1.Type = "ThroughAll"

# Sketch on XY plane
sketch4 = doc.addObject("Sketcher::SketchObject", "Sketch003")
body.addObject(sketch4)
sketch4.AttachmentSupport = (doc.XY_Plane, [""])
sketch4.MapMode = "FlatFace"
sketch4.AttachmentOffset = App.Placement(Vector(0, 0, 0.1875 * 25.4), App.Rotation())
sketch4.addGeometry(Part.LineSegment(Vector(-62.417006, 150.669615, 0), Vector(-43.367006, 150.670436, 0)), False)
sketch4.addGeometry(Part.ArcOfCircle(Part.Circle(Vector(-52.892006, 150.670026, 0), Vector(0, 0, 1), 9.525), math.radians(0.002469), math.radians(180.002469)), False)
sketch4.addGeometry(Part.LineSegment(Vector(43.354019, 150.674174, 0), Vector(62.404019, 150.674995, 0)), False)
sketch4.addGeometry(Part.ArcOfCircle(Part.Circle(Vector(52.879019, 150.674584, 0), Vector(0, 0, 1), 9.525), math.radians(0.002469), math.radians(180.002469)), False)
sketch4.addGeometry(Part.LineSegment(Vector(62.417006, -150.669615, 0), Vector(43.367006, -150.670436, 0)), False)
sketch4.addGeometry(Part.ArcOfCircle(Part.Circle(Vector(52.892006, -150.670026, 0), Vector(0, 0, 1), 9.525), math.radians(-179.997531), math.radians(0.002469)), False)
sketch4.addGeometry(Part.LineSegment(Vector(-43.354019, -150.674174, 0), Vector(-62.404019, -150.674995, 0)), False)
sketch4.addGeometry(Part.ArcOfCircle(Part.Circle(Vector(-52.879019, -150.674584, 0), Vector(0, 0, 1), 9.525), math.radians(-179.997531), math.radians(0.002469)), False)
sketch4.addConstraint(Sketcher.Constraint("Coincident", 0, 1, 1, 2))
sketch4.addConstraint(Sketcher.Constraint("Coincident", 1, 1, 0, 2))
sketch4.addConstraint(Sketcher.Constraint("Coincident", 2, 1, 3, 2))
sketch4.addConstraint(Sketcher.Constraint("Coincident", 3, 1, 2, 2))
sketch4.addConstraint(Sketcher.Constraint("Coincident", 4, 1, 5, 2))
sketch4.addConstraint(Sketcher.Constraint("Coincident", 5, 1, 4, 2))
sketch4.addConstraint(Sketcher.Constraint("Coincident", 6, 1, 7, 2))
sketch4.addConstraint(Sketcher.Constraint("Coincident", 7, 1, 6, 2))
sketch4.addConstraint(Sketcher.Constraint("Equal", 1, 3))
sketch4.addConstraint(Sketcher.Constraint("Equal", 3, 5))
sketch4.addConstraint(Sketcher.Constraint("Equal", 5, 7))
sketch4.addConstraint(Sketcher.Constraint("Symmetric", 1, 3, 5, 3, -1, 1))
sketch4.addConstraint(Sketcher.Constraint("Symmetric", 3, 3, 7, 3, -1, 1))
sketch4.addConstraint(Sketcher.Constraint("Parallel", 0, 2))
sketch4.addConstraint(Sketcher.Constraint("Parallel", 2, 4))
sketch4.addConstraint(Sketcher.Constraint("Parallel", 4, 6))
sketch4.addConstraint(Sketcher.Constraint("Radius", 1, Q("0.375 in")))
sketch4.addConstraint(Sketcher.Constraint("DistanceY", 7, 3, 0, 1, Q("301.344199 mm")))
sketch4.addConstraint(Sketcher.Constraint("DistanceY", 5, 3, 2, 1, Q("301.344199 mm")))
sketch4.addConstraint(Sketcher.Constraint("DistanceY", 4, 1, 3, 3, Q("301.344199 mm")))
sketch4.addConstraint(Sketcher.Constraint("DistanceX", -1, 1, 3, 3, Q("52.879019 mm")))
sketch4.addConstraint(Sketcher.Constraint("DistanceY", 1, 3, 3, 3, Q("0.004558 mm")))
sketch4.addConstraint(Sketcher.Constraint("DistanceY", 5, 3, 3, 3, Q("301.34461 mm")))
sketch4.addConstraint(Sketcher.Constraint("DistanceX", 1, 3, 5, 3, Q("105.784011 mm")))
sketch4.addConstraint(Sketcher.Constraint("DistanceY", 1, 3, 1, 1, Q("0.00041 mm")))
sketch4.addConstraint(Sketcher.Constraint("DistanceY", 7, 3, 6, 1, Q("0.00041 mm")))
pad3 = doc.addObject("PartDesign::Pad", "Pad002")
body.addObject(pad3)
pad3.Profile = sketch4
pad3.Length = Q("0.1875 in")
pad3.Reversed = True

# Sketch on XY plane
sketch5 = doc.addObject("Sketcher::SketchObject", "Sketch004")
body.addObject(sketch5)
sketch5.AttachmentSupport = (doc.XY_Plane, [""])
sketch5.MapMode = "FlatFace"
sketch5.AttachmentOffset = App.Placement(Vector(0, 0, 0.1875 * 25.4), App.Rotation())
sketch5.addGeometry(Part.Circle(Vector(-53.18125, 152.4, 0), Vector(0, 0, 1), 1.89865), False)
sketch5.addGeometry(Part.Circle(Vector(53.18125, 152.4, 0), Vector(0, 0, 1), 1.89865), False)
sketch5.addGeometry(Part.Circle(Vector(53.18125, -152.4, 0), Vector(0, 0, 1), 1.89865), False)
sketch5.addGeometry(Part.Circle(Vector(-53.18125, -152.4, 0), Vector(0, 0, 1), 1.89865), False)
sketch5.addGeometry(Part.Circle(Vector(0, 0, 0), Vector(0, 0, 1), 1.89865), False)
sketch5.addConstraint(Sketcher.Constraint("Coincident", 4, 3, -1, 1))
sketch5.addConstraint(Sketcher.Constraint("Equal", 0, 1))
sketch5.addConstraint(Sketcher.Constraint("Equal", 1, 2))
sketch5.addConstraint(Sketcher.Constraint("Equal", 2, 3))
sketch5.addConstraint(Sketcher.Constraint("Equal", 3, 4))
sketch5.addConstraint(Sketcher.Constraint("Symmetric", 0, 3, 2, 3, -1, 1))
sketch5.addConstraint(Sketcher.Constraint("Symmetric", 1, 3, 3, 3, -1, 1))
sketch5.addConstraint(Sketcher.Constraint("Symmetric", 0, 3, 1, 3, -2))
sketch5.addConstraint(Sketcher.Constraint("DistanceY", -1, 1, 0, 3, Q("6 in")))
sketch5.addConstraint(Sketcher.Constraint("Diameter", 0, Q("0.1495 in")))
sketch5.addConstraint(Sketcher.Constraint("DistanceX", 0, 3, -1, 1, Q("2.09375 in")))
doc.recompute()
hole = doc.addObject("PartDesign::Hole", "Hole")
body.addObject(hole)
hole.Profile = sketch5
hole.ThreadType = "None"
hole.Diameter = Q("0.1495 in")
hole.DepthType = "Dimension"
hole.Depth = Q("1 in")
hole.DrillPoint = "Angled"
hole.DrillPointAngle = 118

# Sketch on XY plane
sketch6 = doc.addObject("Sketcher::SketchObject", "Sketch005")
body.addObject(sketch6)
sketch6.AttachmentSupport = (doc.XY_Plane, [""])
sketch6.MapMode = "FlatFace"
sketch6.AttachmentOffset = App.Placement(Vector(0, 0, 0.1875 * 25.4), App.Rotation())
sketch6.addGeometry(Part.LineSegment(Vector(150.674995, -62.404019, 0), Vector(137.205191, -75.874984, 0)), False)
sketch6.addGeometry(Part.ArcOfCircle(Part.Circle(Vector(150.674995, -62.404019, 0), Vector(0, 0, 1), 19.05), math.radians(-134.997531), math.radians(90.002469)), False)
sketch6.addGeometry(Part.LineSegment(Vector(150.674174, -43.354019, 0), Vector(150.674995, -62.404019, 0)), False)
sketch6.addGeometry(Part.LineSegment(Vector(137.198651, 75.886809, 0), Vector(150.669615, 62.417006, 0)), False)
sketch6.addGeometry(Part.LineSegment(Vector(150.669615, 62.417006, 0), Vector(150.670436, 43.367006, 0)), False)
sketch6.addGeometry(Part.ArcOfCircle(Part.Circle(Vector(150.669615, 62.417006, 0), Vector(0, 0, 1), 19.05), math.radians(-89.997531), math.radians(135.002469)), False)
sketch6.addGeometry(Part.LineSegment(Vector(-150.674174, 43.354019, 0), Vector(-150.674995, 62.404019, 0)), False)
sketch6.addGeometry(Part.LineSegment(Vector(-150.674995, 62.404019, 0), Vector(-137.205191, 75.874984, 0)), False)
sketch6.addGeometry(Part.ArcOfCircle(Part.Circle(Vector(-150.674995, 62.404019, 0), Vector(0, 0, 1), 19.05), math.radians(45.002469), math.radians(270.002469)), False)
sketch6.addGeometry(Part.LineSegment(Vector(-150.669615, -62.417006, 0), Vector(-150.670436, -43.367006, 0)), False)
sketch6.addGeometry(Part.ArcOfCircle(Part.Circle(Vector(-150.669615, -62.417006, 0), Vector(0, 0, 1), 19.05), math.radians(90.002469), math.radians(315.002469)), False)
sketch6.addGeometry(Part.LineSegment(Vector(-137.198651, -75.886809, 0), Vector(-150.669615, -62.417006, 0)), False)
sketch6.addConstraint(Sketcher.Constraint("Coincident", 0, 2, 1, 1))
sketch6.addConstraint(Sketcher.Constraint("Coincident", 1, 2, 2, 1))
sketch6.addConstraint(Sketcher.Constraint("Coincident", 2, 2, 0, 1))
sketch6.addConstraint(Sketcher.Constraint("Coincident", 3, 2, 4, 1))
sketch6.addConstraint(Sketcher.Constraint("Coincident", 4, 2, 5, 1))
sketch6.addConstraint(Sketcher.Constraint("Coincident", 5, 2, 3, 1))
sketch6.addConstraint(Sketcher.Constraint("Coincident", 6, 2, 7, 1))
sketch6.addConstraint(Sketcher.Constraint("Coincident", 7, 2, 8, 1))
sketch6.addConstraint(Sketcher.Constraint("Coincident", 8, 2, 6, 1))
sketch6.addConstraint(Sketcher.Constraint("Coincident", 9, 2, 10, 1))
sketch6.addConstraint(Sketcher.Constraint("Coincident", 10, 2, 11, 1))
sketch6.addConstraint(Sketcher.Constraint("Coincident", 11, 2, 9, 1))
sketch6.addConstraint(Sketcher.Constraint("Coincident", 2, 2, 1, 3))
sketch6.addConstraint(Sketcher.Constraint("Coincident", 3, 2, 5, 3))
sketch6.addConstraint(Sketcher.Constraint("Coincident", 6, 2, 8, 3))
sketch6.addConstraint(Sketcher.Constraint("Coincident", 11, 2, 10, 3))
sketch6.addConstraint(Sketcher.Constraint("Equal", 1, 5))
sketch6.addConstraint(Sketcher.Constraint("Equal", 5, 8))
sketch6.addConstraint(Sketcher.Constraint("Equal", 8, 10))
sketch6.addConstraint(Sketcher.Constraint("Symmetric", 1, 3, 8, 3, -1, 1))
sketch6.addConstraint(Sketcher.Constraint("Symmetric", 5, 3, 10, 3, -1, 1))
sketch6.addConstraint(Sketcher.Constraint("Perpendicular", 0, 3))
sketch6.addConstraint(Sketcher.Constraint("Parallel", 2, 4))
sketch6.addConstraint(Sketcher.Constraint("Parallel", 4, 6))
sketch6.addConstraint(Sketcher.Constraint("Perpendicular", 3, 7))
sketch6.addConstraint(Sketcher.Constraint("Parallel", 6, 9))
sketch6.addConstraint(Sketcher.Constraint("Perpendicular", 7, 11))
sketch6.addConstraint(Sketcher.Constraint("Radius", 1, Q("0.75 in")))
sketch6.addConstraint(Sketcher.Constraint("DistanceY", 1, 3, -1, 1, Q("62.404019 mm")))
sketch6.addConstraint(Sketcher.Constraint("DistanceX", -1, 1, 0, 2, Q("137.205191 mm")))
sketch6.addConstraint(Sketcher.Constraint("DistanceX", -1, 1, 5, 2, Q("137.198651 mm")))
sketch6.addConstraint(Sketcher.Constraint("DistanceY", -1, 1, 5, 2, Q("75.886809 mm")))
sketch6.addConstraint(Sketcher.Constraint("DistanceX", 5, 3, 1, 3, Q("0.005379 mm")))
sketch6.addConstraint(Sketcher.Constraint("DistanceX", 1, 2, 1, 3, Q("0.000821 mm")))
pad4 = doc.addObject("PartDesign::Pad", "Pad003")
body.addObject(pad4)
pad4.Profile = sketch6
pad4.Length = Q("0.1875 in")
pad4.Reversed = True

# Sketch on XY plane
sketch7 = doc.addObject("Sketcher::SketchObject", "Sketch006")
body.addObject(sketch7)
sketch7.AttachmentSupport = (doc.XY_Plane, [""])
sketch7.MapMode = "FlatFace"
sketch7.AttachmentOffset = App.Placement(Vector(0, 0, 0.1875 * 25.4), App.Rotation())
sketch7.addGeometry(Part.Circle(Vector(160.963745, 66.681493, 0), Vector(0, 0, 1), 1.89865), False)
sketch7.addGeometry(Part.Circle(Vector(160.971634, -66.668507, 0), Vector(0, 0, 1), 1.89865), False)
sketch7.addGeometry(Part.Circle(Vector(-160.963745, -66.681493, 0), Vector(0, 0, 1), 1.89865), False)
sketch7.addGeometry(Part.Circle(Vector(-160.971634, 66.668507, 0), Vector(0, 0, 1), 1.89865), False)
sketch7.addConstraint(Sketcher.Constraint("Equal", 0, 1))
sketch7.addConstraint(Sketcher.Constraint("Equal", 1, 2))
sketch7.addConstraint(Sketcher.Constraint("Equal", 2, 3))
sketch7.addConstraint(Sketcher.Constraint("Symmetric", 0, 3, 2, 3, -1, 1))
sketch7.addConstraint(Sketcher.Constraint("Symmetric", 1, 3, 3, 3, -1, 1))
sketch7.addConstraint(Sketcher.Constraint("Diameter", 0, Q("0.1495 in")))
sketch7.addConstraint(Sketcher.Constraint("DistanceY", 1, 3, 0, 3, Q("5.25 in")))
sketch7.addConstraint(Sketcher.Constraint("DistanceX", 0, 3, 1, 3, Q("0.007889 mm")))
sketch7.addConstraint(Sketcher.Constraint("DistanceX", 2, 3, 1, 3, Q("321.935379 mm")))
sketch7.addConstraint(Sketcher.Constraint("DistanceY", -1, 1, 0, 3, Q("66.681493 mm")))
doc.recompute()
hole2 = doc.addObject("PartDesign::Hole", "Hole001")
body.addObject(hole2)
hole2.Profile = sketch7
hole2.ThreadType = "None"
hole2.Diameter = Q("0.1495 in")
hole2.DepthType = "Dimension"
hole2.Depth = Q("1 in")
hole2.DrillPoint = "Angled"
hole2.DrillPointAngle = 118
doc.recompute()

fillet = doc.addObject("PartDesign::Fillet", "Fillet")
body.addObject(fillet)
fillet.Base = (hole2, edges_at(hole2, [
    (-62.417, 150.67, 2.381),
    (62.404, 150.675, 2.381),
    (62.417, -150.67, 2.381),
    (-62.404, -150.675, 2.381),
    (-43.367, 150.67, 2.381),
    (43.354, 150.674, 2.381),
    (43.367, -150.67, 2.381),
    (-43.354, -150.674, 2.381),
    (150.67, 43.367, 2.381),
    (137.199, 75.887, 2.381),
    (150.674, -43.354, 2.381),
    (137.205, -75.875, 2.381),
    (-137.199, -75.887, 2.381),
    (-137.205, 75.875, 2.381),
    (-150.674, 43.354, 2.381),
]))
fillet.Radius = Q("0.1 in")
doc.recompute()

fillet2 = doc.addObject("PartDesign::Fillet", "Fillet001")
body.addObject(fillet2)
fillet2.Base = (fillet, edges_at(fillet, [
    (-90.83, 104.292, 3.175),
    (-104.3, 90.821, 3.175),
    (104.292, 90.83, 3.175),
    (90.821, 104.3, 3.175),
    (90.83, -104.292, 3.175),
    (104.3, -90.821, 3.175),
    (-104.292, -90.83, 3.175),
    (-90.821, -104.3, 3.175),
]))
fillet2.Radius = Q("0.1 in")

doc.recompute()
